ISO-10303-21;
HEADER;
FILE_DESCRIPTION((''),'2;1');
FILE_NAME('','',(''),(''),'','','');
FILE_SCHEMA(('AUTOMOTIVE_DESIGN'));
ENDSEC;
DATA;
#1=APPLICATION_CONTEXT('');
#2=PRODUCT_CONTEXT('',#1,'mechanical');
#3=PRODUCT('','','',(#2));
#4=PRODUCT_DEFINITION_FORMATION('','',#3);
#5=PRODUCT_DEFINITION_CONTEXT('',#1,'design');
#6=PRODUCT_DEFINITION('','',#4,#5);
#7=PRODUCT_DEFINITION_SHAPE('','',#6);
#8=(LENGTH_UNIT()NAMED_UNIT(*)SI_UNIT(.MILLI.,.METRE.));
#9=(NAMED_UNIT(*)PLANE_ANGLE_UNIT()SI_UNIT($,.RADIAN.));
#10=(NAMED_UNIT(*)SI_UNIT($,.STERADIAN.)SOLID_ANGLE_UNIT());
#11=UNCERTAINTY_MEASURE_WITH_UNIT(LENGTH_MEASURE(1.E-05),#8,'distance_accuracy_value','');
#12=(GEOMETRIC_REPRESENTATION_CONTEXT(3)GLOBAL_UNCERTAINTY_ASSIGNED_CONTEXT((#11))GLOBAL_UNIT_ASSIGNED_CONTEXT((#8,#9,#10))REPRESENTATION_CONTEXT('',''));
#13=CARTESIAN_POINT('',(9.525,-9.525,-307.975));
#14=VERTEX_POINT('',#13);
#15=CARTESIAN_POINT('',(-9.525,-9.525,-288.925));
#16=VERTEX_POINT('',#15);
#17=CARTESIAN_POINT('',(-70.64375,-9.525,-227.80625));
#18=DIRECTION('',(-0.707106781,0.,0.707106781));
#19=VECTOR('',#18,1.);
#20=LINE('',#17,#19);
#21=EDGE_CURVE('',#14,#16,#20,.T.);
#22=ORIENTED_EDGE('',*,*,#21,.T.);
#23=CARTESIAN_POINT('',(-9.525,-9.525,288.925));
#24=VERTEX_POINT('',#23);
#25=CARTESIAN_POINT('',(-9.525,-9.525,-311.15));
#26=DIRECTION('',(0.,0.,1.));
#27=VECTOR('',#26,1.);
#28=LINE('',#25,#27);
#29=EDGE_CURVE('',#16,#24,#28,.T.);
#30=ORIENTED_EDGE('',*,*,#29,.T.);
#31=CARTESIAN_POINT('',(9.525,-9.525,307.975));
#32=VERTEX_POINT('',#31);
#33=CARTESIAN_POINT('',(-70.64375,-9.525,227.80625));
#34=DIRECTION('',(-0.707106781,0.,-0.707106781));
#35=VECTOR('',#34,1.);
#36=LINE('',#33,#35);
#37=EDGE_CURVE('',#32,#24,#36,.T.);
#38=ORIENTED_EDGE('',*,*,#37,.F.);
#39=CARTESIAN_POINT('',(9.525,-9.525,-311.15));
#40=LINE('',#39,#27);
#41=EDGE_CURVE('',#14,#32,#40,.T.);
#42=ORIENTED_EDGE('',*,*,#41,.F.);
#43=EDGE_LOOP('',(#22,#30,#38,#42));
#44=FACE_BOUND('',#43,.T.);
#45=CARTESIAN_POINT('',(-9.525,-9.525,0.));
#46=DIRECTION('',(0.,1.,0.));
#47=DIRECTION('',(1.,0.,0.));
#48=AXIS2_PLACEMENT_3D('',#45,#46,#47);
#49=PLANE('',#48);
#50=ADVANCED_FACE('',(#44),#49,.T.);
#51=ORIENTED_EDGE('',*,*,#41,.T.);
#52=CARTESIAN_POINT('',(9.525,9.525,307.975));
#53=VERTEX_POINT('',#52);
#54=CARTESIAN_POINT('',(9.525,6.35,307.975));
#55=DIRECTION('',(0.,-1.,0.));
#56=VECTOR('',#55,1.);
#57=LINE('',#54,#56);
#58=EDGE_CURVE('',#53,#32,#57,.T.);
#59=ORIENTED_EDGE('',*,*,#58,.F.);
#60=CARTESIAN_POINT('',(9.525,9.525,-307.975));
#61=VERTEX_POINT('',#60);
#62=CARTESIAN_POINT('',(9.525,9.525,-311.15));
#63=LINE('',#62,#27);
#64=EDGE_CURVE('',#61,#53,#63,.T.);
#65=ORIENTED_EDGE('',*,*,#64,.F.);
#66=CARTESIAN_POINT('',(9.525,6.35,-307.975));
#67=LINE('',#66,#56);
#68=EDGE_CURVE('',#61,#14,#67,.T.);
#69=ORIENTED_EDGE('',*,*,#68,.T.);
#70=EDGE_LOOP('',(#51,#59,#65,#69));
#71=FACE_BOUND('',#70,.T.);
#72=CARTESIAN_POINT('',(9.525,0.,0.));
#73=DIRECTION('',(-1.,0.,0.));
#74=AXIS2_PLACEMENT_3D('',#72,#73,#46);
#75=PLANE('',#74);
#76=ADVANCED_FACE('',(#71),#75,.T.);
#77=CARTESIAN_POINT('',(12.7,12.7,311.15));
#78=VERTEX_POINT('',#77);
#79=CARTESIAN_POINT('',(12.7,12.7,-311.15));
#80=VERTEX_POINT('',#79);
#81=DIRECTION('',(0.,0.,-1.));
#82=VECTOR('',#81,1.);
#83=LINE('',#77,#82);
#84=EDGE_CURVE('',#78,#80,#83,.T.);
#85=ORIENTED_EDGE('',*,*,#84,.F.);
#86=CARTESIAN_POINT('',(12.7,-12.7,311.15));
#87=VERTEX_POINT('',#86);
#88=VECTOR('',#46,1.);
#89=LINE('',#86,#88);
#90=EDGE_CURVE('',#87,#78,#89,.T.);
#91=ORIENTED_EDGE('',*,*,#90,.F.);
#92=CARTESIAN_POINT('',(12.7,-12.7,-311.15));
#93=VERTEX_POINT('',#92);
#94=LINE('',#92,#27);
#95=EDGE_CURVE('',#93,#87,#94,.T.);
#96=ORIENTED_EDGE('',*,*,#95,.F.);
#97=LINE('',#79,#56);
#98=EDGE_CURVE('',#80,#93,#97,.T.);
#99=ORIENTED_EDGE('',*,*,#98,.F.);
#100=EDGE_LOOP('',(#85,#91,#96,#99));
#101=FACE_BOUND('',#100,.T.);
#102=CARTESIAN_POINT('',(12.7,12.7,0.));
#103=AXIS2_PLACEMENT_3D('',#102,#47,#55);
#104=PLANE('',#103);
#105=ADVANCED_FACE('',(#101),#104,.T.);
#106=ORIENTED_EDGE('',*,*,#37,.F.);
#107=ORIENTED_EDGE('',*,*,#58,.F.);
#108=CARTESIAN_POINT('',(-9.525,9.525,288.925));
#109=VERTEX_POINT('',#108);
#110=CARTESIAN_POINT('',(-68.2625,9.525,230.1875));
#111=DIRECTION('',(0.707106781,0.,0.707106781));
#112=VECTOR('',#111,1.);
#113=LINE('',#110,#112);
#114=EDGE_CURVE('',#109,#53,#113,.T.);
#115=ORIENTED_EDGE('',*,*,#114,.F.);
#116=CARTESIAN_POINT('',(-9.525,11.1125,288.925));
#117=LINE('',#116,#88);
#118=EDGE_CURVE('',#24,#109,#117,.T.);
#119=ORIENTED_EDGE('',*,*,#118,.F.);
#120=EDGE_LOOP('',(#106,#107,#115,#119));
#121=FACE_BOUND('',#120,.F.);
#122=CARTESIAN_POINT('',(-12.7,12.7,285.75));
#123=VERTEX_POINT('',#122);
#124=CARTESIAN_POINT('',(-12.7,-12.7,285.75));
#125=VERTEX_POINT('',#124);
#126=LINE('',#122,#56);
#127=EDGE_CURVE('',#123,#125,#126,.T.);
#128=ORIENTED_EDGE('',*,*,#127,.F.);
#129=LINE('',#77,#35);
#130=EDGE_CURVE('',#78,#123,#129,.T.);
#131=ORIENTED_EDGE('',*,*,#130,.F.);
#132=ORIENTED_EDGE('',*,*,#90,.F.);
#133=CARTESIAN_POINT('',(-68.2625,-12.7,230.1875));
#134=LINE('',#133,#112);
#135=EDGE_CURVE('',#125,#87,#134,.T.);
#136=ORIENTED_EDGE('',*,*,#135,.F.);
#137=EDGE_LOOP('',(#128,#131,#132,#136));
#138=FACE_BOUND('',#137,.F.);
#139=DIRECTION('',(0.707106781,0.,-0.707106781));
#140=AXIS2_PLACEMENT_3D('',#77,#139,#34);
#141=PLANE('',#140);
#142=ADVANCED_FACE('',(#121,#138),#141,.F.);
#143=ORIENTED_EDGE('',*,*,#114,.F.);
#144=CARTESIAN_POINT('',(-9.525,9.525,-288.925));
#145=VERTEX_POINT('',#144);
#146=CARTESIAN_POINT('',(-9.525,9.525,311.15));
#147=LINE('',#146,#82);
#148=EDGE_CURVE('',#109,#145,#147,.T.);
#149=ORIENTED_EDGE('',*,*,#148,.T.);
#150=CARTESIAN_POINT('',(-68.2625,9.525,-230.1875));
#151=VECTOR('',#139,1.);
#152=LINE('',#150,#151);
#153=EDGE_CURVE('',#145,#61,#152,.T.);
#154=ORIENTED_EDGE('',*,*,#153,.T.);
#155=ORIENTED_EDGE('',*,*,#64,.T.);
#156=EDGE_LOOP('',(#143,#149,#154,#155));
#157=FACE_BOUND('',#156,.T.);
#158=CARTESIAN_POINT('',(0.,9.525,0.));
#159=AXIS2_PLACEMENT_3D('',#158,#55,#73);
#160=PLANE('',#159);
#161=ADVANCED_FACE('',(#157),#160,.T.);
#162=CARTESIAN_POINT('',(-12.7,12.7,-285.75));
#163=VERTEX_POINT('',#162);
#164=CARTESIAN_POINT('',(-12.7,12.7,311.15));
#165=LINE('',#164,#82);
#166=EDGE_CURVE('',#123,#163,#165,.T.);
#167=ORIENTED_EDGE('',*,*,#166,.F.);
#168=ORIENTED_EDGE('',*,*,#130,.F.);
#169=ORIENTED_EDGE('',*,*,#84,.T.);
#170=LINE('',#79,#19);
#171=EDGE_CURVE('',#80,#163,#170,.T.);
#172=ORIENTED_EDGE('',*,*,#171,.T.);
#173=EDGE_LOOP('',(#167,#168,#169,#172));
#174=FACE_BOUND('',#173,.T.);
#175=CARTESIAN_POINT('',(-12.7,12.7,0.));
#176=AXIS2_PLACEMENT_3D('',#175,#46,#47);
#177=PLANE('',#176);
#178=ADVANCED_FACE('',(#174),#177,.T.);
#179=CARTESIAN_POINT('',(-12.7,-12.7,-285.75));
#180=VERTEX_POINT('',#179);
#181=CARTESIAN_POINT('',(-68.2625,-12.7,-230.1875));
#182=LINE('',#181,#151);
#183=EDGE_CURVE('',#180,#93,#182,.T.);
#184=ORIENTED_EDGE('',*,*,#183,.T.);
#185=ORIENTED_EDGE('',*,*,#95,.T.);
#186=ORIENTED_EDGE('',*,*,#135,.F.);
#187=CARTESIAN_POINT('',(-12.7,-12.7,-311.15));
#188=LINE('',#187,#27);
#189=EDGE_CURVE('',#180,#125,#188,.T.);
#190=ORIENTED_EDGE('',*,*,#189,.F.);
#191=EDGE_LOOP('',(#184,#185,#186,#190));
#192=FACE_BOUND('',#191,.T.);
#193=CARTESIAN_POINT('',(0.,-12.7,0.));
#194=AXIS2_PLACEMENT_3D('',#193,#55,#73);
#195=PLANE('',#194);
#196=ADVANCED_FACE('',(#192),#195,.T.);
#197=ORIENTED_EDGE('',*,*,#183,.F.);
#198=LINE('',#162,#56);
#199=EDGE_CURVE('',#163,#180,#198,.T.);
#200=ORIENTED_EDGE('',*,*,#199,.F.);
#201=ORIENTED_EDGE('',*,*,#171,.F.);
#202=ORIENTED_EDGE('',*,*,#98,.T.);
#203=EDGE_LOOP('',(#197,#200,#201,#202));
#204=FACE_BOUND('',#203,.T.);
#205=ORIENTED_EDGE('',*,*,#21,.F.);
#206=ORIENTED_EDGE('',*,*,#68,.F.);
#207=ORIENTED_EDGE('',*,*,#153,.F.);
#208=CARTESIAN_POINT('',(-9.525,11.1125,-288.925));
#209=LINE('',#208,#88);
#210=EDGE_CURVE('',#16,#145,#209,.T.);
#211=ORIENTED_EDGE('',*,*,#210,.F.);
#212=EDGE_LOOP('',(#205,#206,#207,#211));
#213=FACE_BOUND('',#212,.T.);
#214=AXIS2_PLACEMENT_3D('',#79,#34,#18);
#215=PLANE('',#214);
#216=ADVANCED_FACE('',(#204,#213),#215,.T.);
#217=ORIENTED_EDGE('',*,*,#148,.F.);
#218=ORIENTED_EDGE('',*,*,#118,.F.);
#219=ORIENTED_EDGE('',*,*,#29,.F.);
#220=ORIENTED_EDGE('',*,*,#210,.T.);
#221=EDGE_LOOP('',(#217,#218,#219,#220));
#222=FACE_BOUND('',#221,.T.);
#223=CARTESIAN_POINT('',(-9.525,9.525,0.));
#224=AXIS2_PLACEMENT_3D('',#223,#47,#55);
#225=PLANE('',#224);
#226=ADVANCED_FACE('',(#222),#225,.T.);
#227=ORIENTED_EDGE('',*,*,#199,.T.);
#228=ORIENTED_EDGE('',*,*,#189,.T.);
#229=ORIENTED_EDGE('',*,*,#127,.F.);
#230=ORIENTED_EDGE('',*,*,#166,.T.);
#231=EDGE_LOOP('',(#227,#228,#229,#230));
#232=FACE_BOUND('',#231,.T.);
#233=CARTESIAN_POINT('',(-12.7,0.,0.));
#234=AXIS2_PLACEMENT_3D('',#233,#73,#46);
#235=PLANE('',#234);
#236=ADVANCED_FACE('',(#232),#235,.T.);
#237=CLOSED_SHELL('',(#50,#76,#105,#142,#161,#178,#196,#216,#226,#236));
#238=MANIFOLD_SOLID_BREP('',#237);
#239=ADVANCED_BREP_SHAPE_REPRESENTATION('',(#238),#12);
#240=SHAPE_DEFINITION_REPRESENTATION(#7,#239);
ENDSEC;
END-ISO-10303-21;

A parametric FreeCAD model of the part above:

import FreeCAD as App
import Part
import Sketcher
from FreeCAD import Vector
Q = App.Units.Quantity

doc = App.newDocument("Part")
body = doc.addObject("PartDesign::Body", "Body")

sketch1 = body.newObject("Sketcher::SketchObject", "Sketch")
sketch1.AttachmentSupport = (doc.getObject("XY_Plane"), [""])
sketch1.MapMode = "FlatFace"
sketch1.addGeometry([
    Part.LineSegment(Vector(-13, 13, 0), Vector(-13, -13, 0)),
    Part.LineSegment(Vector(-13, -13, 0), Vector(13, -13, 0)),
    Part.LineSegment(Vector(13, -13, 0), Vector(13, 13, 0)),
    Part.LineSegment(Vector(13, 13, 0), Vector(-13, 13, 0)),
    Part.LineSegment(Vector(-10, 10, 0), Vector(10, 10, 0)),
    Part.LineSegment(Vector(10, 10, 0), Vector(10, -10, 0)),
    Part.LineSegment(Vector(10, -10, 0), Vector(-10, -10, 0)),
    Part.LineSegment(Vector(-10, -10, 0), Vector(-10, 10, 0)),
], False)
sketch1.addConstraint([
    Sketcher.Constraint("Coincident", 0, 2, 1, 1),
    Sketcher.Constraint("Coincident", 1, 2, 2, 1),
    Sketcher.Constraint("Coincident", 2, 2, 3, 1),
    Sketcher.Constraint("Coincident", 3, 2, 0, 1),
    Sketcher.Constraint("Coincident", 4, 2, 5, 1),
    Sketcher.Constraint("Coincident", 5, 2, 6, 1),
    Sketcher.Constraint("Coincident", 6, 2, 7, 1),
    Sketcher.Constraint("Coincident", 7, 2, 4, 1),
    Sketcher.Constraint("Vertical", 0),
    Sketcher.Constraint("Horizontal", 1),
    Sketcher.Constraint("Vertical", 2),
    Sketcher.Constraint("Horizontal", 3),
    Sketcher.Constraint("Horizontal", 4),
    Sketcher.Constraint("Vertical", 5),
    Sketcher.Constraint("Horizontal", 6),
    Sketcher.Constraint("Vertical", 7),
    Sketcher.Constraint("Symmetric", 0, 2, 2, 2, -1, 1),
    Sketcher.Constraint("Symmetric", 4, 2, 6, 2, -1, 1),
    Sketcher.Constraint("Equal", 3, 0),
    Sketcher.Constraint("Equal", 6, 5),
    Sketcher.Constraint("DistanceX", 1, 1, 1, 2, Q("1 in")),
    Sketcher.Constraint("DistanceX", 4, 2, 2, 2, Q("0.125 in")),
])
pad1 = body.newObject("PartDesign::Pad", "Pad")
pad1.Profile = sketch1
pad1.Length = Q("24.5 in")
pad1.Midplane = True

sketch2 = body.newObject("Sketcher::SketchObject", "Sketch001")
sketch2.AttachmentSupport = (doc.getObject("XZ_Plane"), [""])
sketch2.MapMode = "FlatFace"
sketch2.AttachmentOffset = App.Placement(Vector(0, 0, -0.5 * 25.4), App.Rotation())
sketch2.addGeometry([
    Part.LineSegment(Vector(-13, 286, 0), Vector(-13, 311, 0)),
    Part.LineSegment(Vector(-13, 311, 0), Vector(13, 311, 0)),
    Part.LineSegment(Vector(13, 311, 0), Vector(-13, 286, 0)),
], False)
sketch2.addConstraint([
    Sketcher.Constraint("Coincident", 0, 2, 1, 1),
    Sketcher.Constraint("Coincident", 1, 2, 2, 1),
    Sketcher.Constraint("Coincident", 2, 2, 0, 1),
    Sketcher.Constraint("Vertical", 0),
    Sketcher.Constraint("Horizontal", 1),
    Sketcher.Constraint("Equal", 1, 0),
    Sketcher.Constraint("DistanceX", 1, 1, 1, 2, Q("1 in")),
    Sketcher.Constraint("DistanceX", 0, 2, -1, 1, Q("0.5 in")),
    Sketcher.Constraint("DistanceY", -1, 1, 0, 2, Q("12.25 in")),
])
pocket1 = body.newObject("PartDesign::Pocket", "Pocket")
pocket1.Profile = sketch2
pocket1.Type = "ThroughAll"
pocket1.Reversed = True

sketch3 = body.newObject("Sketcher::SketchObject", "Sketch002")
sketch3.AttachmentSupport = (doc.getObject("XZ_Plane"), [""])
sketch3.MapMode = "FlatFace"
sketch3.AttachmentOffset = App.Placement(Vector(0, 0, -0.5 * 25.4), App.Rotation())
sketch3.addGeometry([
    Part.LineSegment(Vector(-13, -286, 0), Vector(13, -311, 0)),
    Part.LineSegment(Vector(13, -311, 0), Vector(-13, -311, 0)),
    Part.LineSegment(Vector(-13, -311, 0), Vector(-13, -286, 0)),
], False)
sketch3.addConstraint([
    Sketcher.Constraint("Coincident", 0, 2, 1, 1),
    Sketcher.Constraint("Coincident", 1, 2, 2, 1),
    Sketcher.Constraint("Coincident", 2, 2, 0, 1),
    Sketcher.Constraint("Horizontal", 1),
    Sketcher.Constraint("Vertical", 2),
    Sketcher.Constraint("Equal", 1, 2),
    Sketcher.Constraint("DistanceX", 1, 2, 1, 1, Q("1 in")),
    Sketcher.Constraint("DistanceX", -1, 1, 0, 2, Q("0.5 in")),
    Sketcher.Constraint("DistanceY", 0, 2, -1, 1, Q("12.25 in")),
])
pocket2 = body.newObject("PartDesign::Pocket", "Pocket001")
pocket2.Profile = sketch3
pocket2.Type = "ThroughAll"
pocket2.Reversed = True

doc.recompute()
